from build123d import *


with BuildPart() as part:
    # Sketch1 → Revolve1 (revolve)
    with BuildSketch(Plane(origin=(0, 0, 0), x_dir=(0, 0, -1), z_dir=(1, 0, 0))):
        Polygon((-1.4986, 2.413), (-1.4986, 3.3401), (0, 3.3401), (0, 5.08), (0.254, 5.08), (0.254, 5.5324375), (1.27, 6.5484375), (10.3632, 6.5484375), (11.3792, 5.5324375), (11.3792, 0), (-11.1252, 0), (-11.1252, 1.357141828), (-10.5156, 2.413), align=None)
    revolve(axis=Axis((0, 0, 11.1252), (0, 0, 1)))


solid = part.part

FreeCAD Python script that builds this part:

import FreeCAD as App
import Part
import Sketcher

V = App.Vector
Q = App.Units.Quantity


def add_polygon(sketch, points):
    """Adds a closed chain of lines whose ends are joined by coincident constraints."""
    first, n = sketch.GeometryCount, len(points)
    for a, b in zip(points, points[1:] + points[:1]):
        sketch.addGeometry(Part.LineSegment(App.Vector(*a, 0), App.Vector(*b, 0)), False)
    for i in range(n):
        sketch.addConstraint(Sketcher.Constraint("Coincident", first + i, 2, first + (i + 1) % n, 1))

doc = App.newDocument("Part")
body = doc.addObject("PartDesign::Body", "Body")

sketch1 = body.newObject("Sketcher::SketchObject", "Sketch")
sketch1.AttachmentSupport = (doc.getObject("YZ_Plane"), [""])
sketch1.MapMode = "FlatFace"
add_polygon(sketch1, [(3.34, 1.5), (2.41, 1.5), (2.41, 10.52), (1.36, 11.13), (0, 11.13), (0, -11.38), (5.53, -11.38), (6.55, -10.36), (6.55, -1.27), (5.53, -0.25), (5.08, -0.25), (5.08, 0), (3.34, 0)])
sketch1.addConstraint(Sketcher.Constraint("Horizontal", 0))
sketch1.addConstraint(Sketcher.Constraint("Vertical", 1))
sketch1.addConstraint(Sketcher.Constraint("Horizontal", 3))
sketch1.addConstraint(Sketcher.Constraint("Vertical", 4))
sketch1.addConstraint(Sketcher.Constraint("Horizontal", 5))
sketch1.addConstraint(Sketcher.Constraint("Vertical", 7))
sketch1.addConstraint(Sketcher.Constraint("Horizontal", 9))
sketch1.addConstraint(Sketcher.Constraint("Vertical", 10))
sketch1.addConstraint(Sketcher.Constraint("Horizontal", 11))
sketch1.addConstraint(Sketcher.Constraint("Vertical", 12))
sketch1.addConstraint(Sketcher.Constraint("PointOnObject", 3, 2, -2))
sketch1.addConstraint(Sketcher.Constraint("PointOnObject", 10, 2, -1))
sketch1.addConstraint(Sketcher.Constraint("Perpendicular", 6, 8))
sketch1.addConstraint(Sketcher.Constraint("Vertical", 5, 2, 8, 2))
sketch1.addConstraint(Sketcher.Constraint("Equal", 6, 8))
sketch1.addConstraint(Sketcher.Constraint("Angle", 2, Q("150 deg")))
sketch1.addConstraint(Sketcher.Constraint("DistanceY", 10, 1, 10, 2, Q("0.01 in")))
sketch1.addConstraint(Sketcher.Constraint("DistanceX", -1, 1, 9, 2, Q("0.2 in")))
sketch1.addConstraint(Sketcher.Constraint("DistanceY", 1, 1, 1, 2, Q("0.355 in")))
sketch1.addConstraint(Sketcher.Constraint("DistanceY", 4, 2, 4, 1, Q("0.886 in")))
sketch1.addConstraint(Sketcher.Constraint("DistanceY", 7, 1, 7, 2, Q("0.358 in")))
sketch1.addConstraint(Sketcher.Constraint("DistanceY", 12, 1, 12, 2, Q("0.059 in")))
sketch1.addConstraint(Sketcher.Constraint("DistanceY", 7, 2, -1, 1, Q("0.05 in")))
sketch1.addConstraint(Sketcher.Constraint("DistanceX", 0, 2, 0, 1, Q("0.0365 in")))
sketch1.addConstraint(Sketcher.Constraint("DistanceX", 11, 2, 11, 1, Q("0.0685 in")))
sketch1.addConstraint(Sketcher.Constraint("DistanceX", 5, 1, 5, 2, 5.532438))
revolution = body.newObject("PartDesign::Revolution", "Revolution")
revolution.Profile = sketch1
revolution.ReferenceAxis = (sketch1, ["V_Axis"])
revolution.Angle = 360

doc.recompute()
